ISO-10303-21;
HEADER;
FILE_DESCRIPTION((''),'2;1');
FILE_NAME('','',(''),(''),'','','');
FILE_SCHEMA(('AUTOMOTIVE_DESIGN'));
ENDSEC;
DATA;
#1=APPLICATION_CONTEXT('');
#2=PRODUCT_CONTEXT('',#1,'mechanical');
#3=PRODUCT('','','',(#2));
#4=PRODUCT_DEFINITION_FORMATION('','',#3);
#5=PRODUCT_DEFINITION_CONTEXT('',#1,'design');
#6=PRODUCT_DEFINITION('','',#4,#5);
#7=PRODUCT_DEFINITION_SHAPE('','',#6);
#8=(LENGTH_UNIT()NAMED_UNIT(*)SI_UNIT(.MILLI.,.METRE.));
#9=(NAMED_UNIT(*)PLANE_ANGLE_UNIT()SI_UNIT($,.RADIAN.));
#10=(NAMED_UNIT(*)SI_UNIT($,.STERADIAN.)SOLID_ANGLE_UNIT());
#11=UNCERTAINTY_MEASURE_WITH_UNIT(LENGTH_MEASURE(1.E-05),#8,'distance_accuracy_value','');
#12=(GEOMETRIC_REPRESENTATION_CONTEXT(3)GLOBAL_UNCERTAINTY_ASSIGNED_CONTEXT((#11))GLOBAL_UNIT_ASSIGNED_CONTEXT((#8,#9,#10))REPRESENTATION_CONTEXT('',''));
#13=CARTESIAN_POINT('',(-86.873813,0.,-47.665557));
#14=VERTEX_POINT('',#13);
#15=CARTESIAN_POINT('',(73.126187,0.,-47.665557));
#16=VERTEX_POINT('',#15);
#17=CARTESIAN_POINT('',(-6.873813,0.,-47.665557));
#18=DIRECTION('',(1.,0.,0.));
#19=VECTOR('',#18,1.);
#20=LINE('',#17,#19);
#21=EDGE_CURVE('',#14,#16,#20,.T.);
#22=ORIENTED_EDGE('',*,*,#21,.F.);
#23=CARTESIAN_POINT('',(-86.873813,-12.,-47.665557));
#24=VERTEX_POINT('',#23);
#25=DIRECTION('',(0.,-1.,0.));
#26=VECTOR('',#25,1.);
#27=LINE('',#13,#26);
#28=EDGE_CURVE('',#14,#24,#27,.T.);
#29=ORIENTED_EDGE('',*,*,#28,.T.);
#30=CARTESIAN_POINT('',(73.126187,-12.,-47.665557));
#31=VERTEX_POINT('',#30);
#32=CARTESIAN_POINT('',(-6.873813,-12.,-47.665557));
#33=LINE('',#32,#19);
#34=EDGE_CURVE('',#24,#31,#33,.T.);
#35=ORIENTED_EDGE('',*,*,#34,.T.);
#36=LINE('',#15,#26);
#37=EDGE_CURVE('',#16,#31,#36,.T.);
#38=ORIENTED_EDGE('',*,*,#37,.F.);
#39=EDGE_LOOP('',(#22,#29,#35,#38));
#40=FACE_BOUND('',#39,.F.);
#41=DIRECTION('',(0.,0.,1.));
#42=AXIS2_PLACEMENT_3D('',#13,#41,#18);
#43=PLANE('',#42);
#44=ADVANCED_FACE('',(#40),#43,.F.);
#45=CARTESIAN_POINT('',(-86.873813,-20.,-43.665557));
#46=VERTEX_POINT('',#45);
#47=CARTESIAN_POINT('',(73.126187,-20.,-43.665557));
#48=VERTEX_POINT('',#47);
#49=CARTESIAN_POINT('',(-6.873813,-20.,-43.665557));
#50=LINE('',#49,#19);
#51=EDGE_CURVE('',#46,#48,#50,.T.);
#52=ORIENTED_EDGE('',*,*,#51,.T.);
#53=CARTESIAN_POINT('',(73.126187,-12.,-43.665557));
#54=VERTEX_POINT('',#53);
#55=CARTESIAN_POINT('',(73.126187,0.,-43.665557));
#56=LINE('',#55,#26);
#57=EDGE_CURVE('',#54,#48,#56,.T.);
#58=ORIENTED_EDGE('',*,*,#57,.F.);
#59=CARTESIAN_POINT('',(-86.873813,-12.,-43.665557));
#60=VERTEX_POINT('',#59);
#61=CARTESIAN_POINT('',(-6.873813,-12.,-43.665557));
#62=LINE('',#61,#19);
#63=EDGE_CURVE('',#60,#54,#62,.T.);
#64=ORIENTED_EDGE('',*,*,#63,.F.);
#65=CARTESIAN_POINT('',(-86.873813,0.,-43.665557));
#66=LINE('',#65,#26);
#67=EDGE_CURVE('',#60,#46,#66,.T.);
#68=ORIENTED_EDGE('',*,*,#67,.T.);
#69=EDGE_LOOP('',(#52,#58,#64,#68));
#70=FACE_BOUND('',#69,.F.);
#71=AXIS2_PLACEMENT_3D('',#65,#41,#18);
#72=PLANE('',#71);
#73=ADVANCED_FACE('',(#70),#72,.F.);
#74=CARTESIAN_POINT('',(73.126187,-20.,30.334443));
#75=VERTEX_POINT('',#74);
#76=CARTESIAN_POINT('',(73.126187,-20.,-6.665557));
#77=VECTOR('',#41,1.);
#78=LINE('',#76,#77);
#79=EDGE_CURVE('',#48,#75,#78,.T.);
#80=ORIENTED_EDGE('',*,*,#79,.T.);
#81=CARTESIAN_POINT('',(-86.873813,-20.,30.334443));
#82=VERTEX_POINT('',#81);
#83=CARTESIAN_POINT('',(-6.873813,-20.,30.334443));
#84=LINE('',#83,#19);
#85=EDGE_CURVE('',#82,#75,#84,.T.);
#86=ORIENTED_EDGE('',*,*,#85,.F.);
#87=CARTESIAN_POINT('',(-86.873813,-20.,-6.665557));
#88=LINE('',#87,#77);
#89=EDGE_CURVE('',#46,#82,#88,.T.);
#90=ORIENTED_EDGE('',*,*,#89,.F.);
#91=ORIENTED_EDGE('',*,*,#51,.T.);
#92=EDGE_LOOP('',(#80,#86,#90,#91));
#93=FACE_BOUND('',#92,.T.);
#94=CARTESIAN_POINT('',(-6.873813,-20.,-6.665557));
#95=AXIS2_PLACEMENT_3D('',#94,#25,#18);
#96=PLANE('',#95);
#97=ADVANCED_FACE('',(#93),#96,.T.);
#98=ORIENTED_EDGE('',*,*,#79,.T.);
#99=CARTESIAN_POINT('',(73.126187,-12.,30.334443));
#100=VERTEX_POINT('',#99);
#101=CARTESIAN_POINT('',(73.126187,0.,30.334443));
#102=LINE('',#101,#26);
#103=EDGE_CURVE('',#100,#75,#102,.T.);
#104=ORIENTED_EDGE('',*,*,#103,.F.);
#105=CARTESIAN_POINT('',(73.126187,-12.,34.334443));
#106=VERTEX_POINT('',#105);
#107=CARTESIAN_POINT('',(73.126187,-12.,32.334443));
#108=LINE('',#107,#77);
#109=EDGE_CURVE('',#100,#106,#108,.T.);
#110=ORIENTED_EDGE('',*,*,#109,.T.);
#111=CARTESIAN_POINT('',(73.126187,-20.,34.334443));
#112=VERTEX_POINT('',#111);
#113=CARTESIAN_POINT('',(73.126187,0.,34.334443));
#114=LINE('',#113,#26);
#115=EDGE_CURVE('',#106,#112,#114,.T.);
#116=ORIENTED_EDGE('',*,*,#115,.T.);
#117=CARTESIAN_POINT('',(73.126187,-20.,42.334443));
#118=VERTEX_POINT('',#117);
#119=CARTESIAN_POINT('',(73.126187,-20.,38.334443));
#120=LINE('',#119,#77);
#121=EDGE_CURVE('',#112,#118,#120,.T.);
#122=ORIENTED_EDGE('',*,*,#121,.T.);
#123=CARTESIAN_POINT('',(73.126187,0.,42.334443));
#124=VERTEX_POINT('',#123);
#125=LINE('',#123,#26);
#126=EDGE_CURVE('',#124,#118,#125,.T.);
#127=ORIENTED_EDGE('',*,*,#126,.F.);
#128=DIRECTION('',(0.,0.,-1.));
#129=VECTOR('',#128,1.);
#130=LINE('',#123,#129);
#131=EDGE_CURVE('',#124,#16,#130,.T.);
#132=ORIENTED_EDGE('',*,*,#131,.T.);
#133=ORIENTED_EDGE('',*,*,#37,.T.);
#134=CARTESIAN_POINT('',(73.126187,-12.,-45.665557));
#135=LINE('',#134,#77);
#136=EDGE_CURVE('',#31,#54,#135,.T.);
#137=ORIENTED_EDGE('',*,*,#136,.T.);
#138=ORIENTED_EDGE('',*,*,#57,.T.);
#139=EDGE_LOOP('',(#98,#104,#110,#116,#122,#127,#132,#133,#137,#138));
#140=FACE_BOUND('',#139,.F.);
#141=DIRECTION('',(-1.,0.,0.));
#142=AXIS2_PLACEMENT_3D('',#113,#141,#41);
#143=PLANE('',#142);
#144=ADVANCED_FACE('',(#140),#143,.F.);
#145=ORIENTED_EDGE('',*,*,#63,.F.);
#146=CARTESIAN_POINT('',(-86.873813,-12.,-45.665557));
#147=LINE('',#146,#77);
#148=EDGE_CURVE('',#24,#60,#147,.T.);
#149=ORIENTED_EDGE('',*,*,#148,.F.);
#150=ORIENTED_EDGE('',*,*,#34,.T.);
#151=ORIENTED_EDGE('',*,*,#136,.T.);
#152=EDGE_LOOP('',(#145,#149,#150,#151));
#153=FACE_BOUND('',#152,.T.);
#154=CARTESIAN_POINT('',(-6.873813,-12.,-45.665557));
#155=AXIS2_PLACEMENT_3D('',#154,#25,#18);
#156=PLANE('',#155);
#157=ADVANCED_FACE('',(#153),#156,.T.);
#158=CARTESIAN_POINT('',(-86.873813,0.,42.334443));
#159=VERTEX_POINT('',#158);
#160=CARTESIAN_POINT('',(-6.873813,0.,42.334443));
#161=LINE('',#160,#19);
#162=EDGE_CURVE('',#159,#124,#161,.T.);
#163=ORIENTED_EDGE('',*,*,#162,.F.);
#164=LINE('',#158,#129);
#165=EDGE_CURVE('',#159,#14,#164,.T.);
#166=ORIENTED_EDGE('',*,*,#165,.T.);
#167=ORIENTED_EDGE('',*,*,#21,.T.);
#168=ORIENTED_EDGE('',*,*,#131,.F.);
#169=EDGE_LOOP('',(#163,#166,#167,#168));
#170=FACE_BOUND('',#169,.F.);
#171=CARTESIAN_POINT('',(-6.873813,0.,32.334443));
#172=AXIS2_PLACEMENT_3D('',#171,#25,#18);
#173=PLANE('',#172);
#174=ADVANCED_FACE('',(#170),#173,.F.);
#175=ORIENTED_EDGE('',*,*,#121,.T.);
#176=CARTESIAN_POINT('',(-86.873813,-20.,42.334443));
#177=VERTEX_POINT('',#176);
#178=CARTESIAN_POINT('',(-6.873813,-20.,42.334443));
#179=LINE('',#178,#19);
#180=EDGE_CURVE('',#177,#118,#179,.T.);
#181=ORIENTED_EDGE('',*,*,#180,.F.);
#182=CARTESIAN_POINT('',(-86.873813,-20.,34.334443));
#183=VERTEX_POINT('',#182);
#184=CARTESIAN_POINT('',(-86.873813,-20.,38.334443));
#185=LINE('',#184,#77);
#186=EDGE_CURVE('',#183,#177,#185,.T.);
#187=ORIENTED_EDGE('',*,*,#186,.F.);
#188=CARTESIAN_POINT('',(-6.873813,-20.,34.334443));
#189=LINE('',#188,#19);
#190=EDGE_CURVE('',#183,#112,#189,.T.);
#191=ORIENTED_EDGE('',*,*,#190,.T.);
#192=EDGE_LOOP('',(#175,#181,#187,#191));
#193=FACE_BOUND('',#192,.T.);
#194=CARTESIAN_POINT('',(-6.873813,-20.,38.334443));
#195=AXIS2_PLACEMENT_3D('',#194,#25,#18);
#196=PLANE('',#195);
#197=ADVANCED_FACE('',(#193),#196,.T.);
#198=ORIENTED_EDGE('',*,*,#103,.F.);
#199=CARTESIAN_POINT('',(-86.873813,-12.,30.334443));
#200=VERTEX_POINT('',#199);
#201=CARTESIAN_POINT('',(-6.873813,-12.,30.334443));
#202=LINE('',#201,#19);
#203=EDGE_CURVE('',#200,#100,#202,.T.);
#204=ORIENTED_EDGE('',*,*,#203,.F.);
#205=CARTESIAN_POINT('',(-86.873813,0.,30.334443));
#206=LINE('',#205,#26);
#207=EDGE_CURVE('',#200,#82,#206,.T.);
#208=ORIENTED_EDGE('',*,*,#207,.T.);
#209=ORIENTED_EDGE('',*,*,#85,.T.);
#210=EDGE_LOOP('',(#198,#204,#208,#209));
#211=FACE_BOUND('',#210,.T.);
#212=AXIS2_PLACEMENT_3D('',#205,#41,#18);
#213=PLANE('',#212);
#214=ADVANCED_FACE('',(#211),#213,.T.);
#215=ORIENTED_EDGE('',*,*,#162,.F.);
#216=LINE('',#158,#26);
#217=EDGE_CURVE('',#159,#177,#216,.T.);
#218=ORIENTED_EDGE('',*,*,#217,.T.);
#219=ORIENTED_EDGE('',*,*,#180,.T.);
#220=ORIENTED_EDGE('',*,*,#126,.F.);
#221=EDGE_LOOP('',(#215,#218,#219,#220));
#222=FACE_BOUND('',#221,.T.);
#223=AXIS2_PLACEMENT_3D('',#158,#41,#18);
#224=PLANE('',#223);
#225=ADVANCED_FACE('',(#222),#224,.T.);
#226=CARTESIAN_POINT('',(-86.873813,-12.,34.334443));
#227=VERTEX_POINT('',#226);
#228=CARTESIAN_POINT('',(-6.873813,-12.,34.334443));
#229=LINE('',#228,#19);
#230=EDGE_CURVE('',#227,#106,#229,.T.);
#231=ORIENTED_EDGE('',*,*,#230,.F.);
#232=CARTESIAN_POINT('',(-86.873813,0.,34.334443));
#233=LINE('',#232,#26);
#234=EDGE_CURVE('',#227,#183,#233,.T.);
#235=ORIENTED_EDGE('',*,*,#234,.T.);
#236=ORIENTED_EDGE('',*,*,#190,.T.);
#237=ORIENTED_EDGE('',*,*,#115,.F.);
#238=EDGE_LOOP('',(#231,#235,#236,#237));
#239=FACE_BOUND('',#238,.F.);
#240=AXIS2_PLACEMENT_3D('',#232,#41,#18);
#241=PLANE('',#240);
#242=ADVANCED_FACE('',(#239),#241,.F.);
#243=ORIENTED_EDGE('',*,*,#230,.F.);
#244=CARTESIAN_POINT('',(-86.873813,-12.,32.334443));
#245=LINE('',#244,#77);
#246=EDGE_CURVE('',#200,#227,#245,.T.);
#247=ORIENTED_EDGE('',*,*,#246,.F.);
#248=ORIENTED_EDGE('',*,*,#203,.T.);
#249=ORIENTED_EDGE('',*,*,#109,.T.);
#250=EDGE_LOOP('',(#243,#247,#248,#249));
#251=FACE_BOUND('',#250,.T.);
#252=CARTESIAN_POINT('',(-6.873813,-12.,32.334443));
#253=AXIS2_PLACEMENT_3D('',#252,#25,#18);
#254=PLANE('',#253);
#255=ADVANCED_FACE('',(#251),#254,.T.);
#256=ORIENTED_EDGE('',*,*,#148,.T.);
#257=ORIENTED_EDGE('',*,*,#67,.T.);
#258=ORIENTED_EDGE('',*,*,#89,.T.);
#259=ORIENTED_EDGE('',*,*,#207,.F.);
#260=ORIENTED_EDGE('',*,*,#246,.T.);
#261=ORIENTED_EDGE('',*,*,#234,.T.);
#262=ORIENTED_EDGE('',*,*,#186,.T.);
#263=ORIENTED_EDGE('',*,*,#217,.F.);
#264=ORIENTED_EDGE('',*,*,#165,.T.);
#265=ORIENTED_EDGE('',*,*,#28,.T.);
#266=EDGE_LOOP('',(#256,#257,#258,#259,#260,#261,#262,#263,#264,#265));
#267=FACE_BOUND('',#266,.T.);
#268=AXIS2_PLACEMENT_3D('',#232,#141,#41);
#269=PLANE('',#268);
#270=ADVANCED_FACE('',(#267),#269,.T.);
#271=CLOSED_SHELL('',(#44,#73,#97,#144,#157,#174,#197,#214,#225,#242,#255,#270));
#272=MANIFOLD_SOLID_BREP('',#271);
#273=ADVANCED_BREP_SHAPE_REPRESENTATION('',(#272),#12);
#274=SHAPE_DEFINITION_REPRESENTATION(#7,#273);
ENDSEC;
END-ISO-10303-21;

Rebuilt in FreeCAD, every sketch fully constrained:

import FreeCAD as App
import Part
import Sketcher

doc = App.newDocument("Part")
body = doc.addObject("PartDesign::Body", "Body")

# Sketch on XZ plane
sketch1 = body.newObject("Sketcher::SketchObject", "Sketch")
sketch1.AttachmentSupport = (doc.getObject("XZ_Plane"), [""])
sketch1.MapMode = "FlatFace"
sketch1.addGeometry(Part.LineSegment(App.Vector(-87, 30, 0), App.Vector(-87, -44, 0)), False)
sketch1.addGeometry(Part.LineSegment(App.Vector(-87, -44, 0), App.Vector(73, -44, 0)), False)
sketch1.addGeometry(Part.LineSegment(App.Vector(73, -44, 0), App.Vector(73, 30, 0)), False)
sketch1.addGeometry(Part.LineSegment(App.Vector(73, 30, 0), App.Vector(-87, 30, 0)), False)
sketch1.addConstraint(Sketcher.Constraint("Coincident", 0, 2, 1, 1))
sketch1.addConstraint(Sketcher.Constraint("Coincident", 1, 2, 2, 1))
sketch1.addConstraint(Sketcher.Constraint("Coincident", 2, 2, 3, 1))
sketch1.addConstraint(Sketcher.Constraint("Coincident", 3, 2, 0, 1))
sketch1.addConstraint(Sketcher.Constraint("Vertical", 0))
sketch1.addConstraint(Sketcher.Constraint("Horizontal", 1))
sketch1.addConstraint(Sketcher.Constraint("Vertical", 2))
sketch1.addConstraint(Sketcher.Constraint("Horizontal", 3))
sketch1.addConstraint(Sketcher.Constraint("DistanceX", 1, 1, 1, 2, 160.0))
sketch1.addConstraint(Sketcher.Constraint("DistanceY", 0, 2, 0, 1, 74.0))
sketch1.addConstraint(Sketcher.Constraint("DistanceX", 0, 2, -1, 1, 86.873813))
sketch1.addConstraint(Sketcher.Constraint("DistanceY", 0, 2, -1, 1, 43.665557))
pad1 = body.newObject("PartDesign::Pad", "Pad")
pad1.Profile = sketch1
pad1.Length = 20

# Sketch on XZ plane
sketch2 = body.newObject("Sketcher::SketchObject", "Sketch001")
sketch2.AttachmentSupport = (doc.getObject("XZ_Plane"), [""])
sketch2.MapMode = "FlatFace"
sketch2.addGeometry(Part.LineSegment(App.Vector(-86.9, -43.7, 0), App.Vector(-86.9, -47.7, 0)), False)
sketch2.addGeometry(Part.LineSegment(App.Vector(-86.9, -47.7, 0), App.Vector(73.1, -47.7, 0)), False)
sketch2.addGeometry(Part.LineSegment(App.Vector(73.1, -47.7, 0), App.Vector(73.1, -43.7, 0)), False)
sketch2.addGeometry(Part.LineSegment(App.Vector(73.1, -43.7, 0), App.Vector(-86.9, -43.7, 0)), False)
sketch2.addConstraint(Sketcher.Constraint("Coincident", 0, 2, 1, 1))
sketch2.addConstraint(Sketcher.Constraint("Coincident", 1, 2, 2, 1))
sketch2.addConstraint(Sketcher.Constraint("Coincident", 2, 2, 3, 1))
sketch2.addConstraint(Sketcher.Constraint("Coincident", 3, 2, 0, 1))
sketch2.addConstraint(Sketcher.Constraint("Vertical", 0))
sketch2.addConstraint(Sketcher.Constraint("Horizontal", 1))
sketch2.addConstraint(Sketcher.Constraint("Vertical", 2))
sketch2.addConstraint(Sketcher.Constraint("Horizontal", 3))
sketch2.addConstraint(Sketcher.Constraint("DistanceX", 1, 1, 1, 2, 160.0))
sketch2.addConstraint(Sketcher.Constraint("DistanceY", 0, 2, 0, 1, 4.0))
sketch2.addConstraint(Sketcher.Constraint("DistanceX", 0, 2, -1, 1, 86.873813))
sketch2.addConstraint(Sketcher.Constraint("DistanceY", 0, 2, -1, 1, 47.665557))
pad2 = body.newObject("PartDesign::Pad", "Pad001")
pad2.Profile = sketch2
pad2.Length = 12

# Sketch on XZ plane
sketch3 = body.newObject("Sketcher::SketchObject", "Sketch002")
sketch3.AttachmentSupport = (doc.getObject("XZ_Plane"), [""])
sketch3.MapMode = "FlatFace"
sketch3.addGeometry(Part.LineSegment(App.Vector(-86.9, 34.3, 0), App.Vector(-86.9, 30.3, 0)), False)
sketch3.addGeometry(Part.LineSegment(App.Vector(-86.9, 30.3, 0), App.Vector(73.1, 30.3, 0)), False)
sketch3.addGeometry(Part.LineSegment(App.Vector(73.1, 30.3, 0), App.Vector(73.1, 34.3, 0)), False)
sketch3.addGeometry(Part.LineSegment(App.Vector(73.1, 34.3, 0), App.Vector(-86.9, 34.3, 0)), False)
sketch3.addConstraint(Sketcher.Constraint("Coincident", 0, 2, 1, 1))
sketch3.addConstraint(Sketcher.Constraint("Coincident", 1, 2, 2, 1))
sketch3.addConstraint(Sketcher.Constraint("Coincident", 2, 2, 3, 1))
sketch3.addConstraint(Sketcher.Constraint("Coincident", 3, 2, 0, 1))
sketch3.addConstraint(Sketcher.Constraint("Vertical", 0))
sketch3.addConstraint(Sketcher.Constraint("Horizontal", 1))
sketch3.addConstraint(Sketcher.Constraint("Vertical", 2))
sketch3.addConstraint(Sketcher.Constraint("Horizontal", 3))
sketch3.addConstraint(Sketcher.Constraint("DistanceX", 1, 1, 1, 2, 160.0))
sketch3.addConstraint(Sketcher.Constraint("DistanceY", 0, 2, 0, 1, 4.0))
sketch3.addConstraint(Sketcher.Constraint("DistanceX", 0, 2, -1, 1, 86.873813))
sketch3.addConstraint(Sketcher.Constraint("DistanceY", -1, 1, 0, 2, 30.334443))
pad3 = body.newObject("PartDesign::Pad", "Pad002")
pad3.Profile = sketch3
pad3.Length = 12

# Sketch on XZ plane
sketch4 = body.newObject("Sketcher::SketchObject", "Sketch003")
sketch4.AttachmentSupport = (doc.getObject("XZ_Plane"), [""])
sketch4.MapMode = "FlatFace"
sketch4.addGeometry(Part.LineSegment(App.Vector(-87, 42, 0), App.Vector(-87, 34, 0)), False)
sketch4.addGeometry(Part.LineSegment(App.Vector(-87, 34, 0), App.Vector(73, 34, 0)), False)
sketch4.addGeometry(Part.LineSegment(App.Vector(73, 34, 0), App.Vector(73, 42, 0)), False)
sketch4.addGeometry(Part.LineSegment(App.Vector(73, 42, 0), App.Vector(-87, 42, 0)), False)
sketch4.addConstraint(Sketcher.Constraint("Coincident", 0, 2, 1, 1))
sketch4.addConstraint(Sketcher.Constraint("Coincident", 1, 2, 2, 1))
sketch4.addConstraint(Sketcher.Constraint("Coincident", 2, 2, 3, 1))
sketch4.addConstraint(Sketcher.Constraint("Coincident", 3, 2, 0, 1))
sketch4.addConstraint(Sketcher.Constraint("Vertical", 0))
sketch4.addConstraint(Sketcher.Constraint("Horizontal", 1))
sketch4.addConstraint(Sketcher.Constraint("Vertical", 2))
sketch4.addConstraint(Sketcher.Constraint("Horizontal", 3))
sketch4.addConstraint(Sketcher.Constraint("DistanceX", 1, 1, 1, 2, 160.0))
sketch4.addConstraint(Sketcher.Constraint("DistanceY", 0, 2, 0, 1, 8.0))
sketch4.addConstraint(Sketcher.Constraint("DistanceX", 0, 2, -1, 1, 86.873813))
sketch4.addConstraint(Sketcher.Constraint("DistanceY", -1, 1, 0, 2, 34.334443))
pad4 = body.newObject("PartDesign::Pad", "Pad003")
pad4.Profile = sketch4
pad4.Length = 20

# Sketch on XZ plane
sketch5 = body.newObject("Sketcher::SketchObject", "Sketch004")
sketch5.AttachmentSupport = (doc.getObject("XZ_Plane"), [""])
sketch5.MapMode = "FlatFace"
sketch5.addGeometry(Part.LineSegment(App.Vector(-86.9, 34.3, 0), App.Vector(-86.9, 30.3, 0)), False)
sketch5.addGeometry(Part.LineSegment(App.Vector(-86.9, 30.3, 0), App.Vector(73.1, 30.3, 0)), False)
sketch5.addGeometry(Part.LineSegment(App.Vector(73.1, 30.3, 0), App.Vector(73.1, 34.3, 0)), False)
sketch5.addGeometry(Part.LineSegment(App.Vector(73.1, 34.3, 0), App.Vector(-86.9, 34.3, 0)), False)
sketch5.addConstraint(Sketcher.Constraint("Coincident", 0, 2, 1, 1))
sketch5.addConstraint(Sketcher.Constraint("Coincident", 1, 2, 2, 1))
sketch5.addConstraint(Sketcher.Constraint("Coincident", 2, 2, 3, 1))
sketch5.addConstraint(Sketcher.Constraint("Coincident", 3, 2, 0, 1))
sketch5.addConstraint(Sketcher.Constraint("Vertical", 0))
sketch5.addConstraint(Sketcher.Constraint("Horizontal", 1))
sketch5.addConstraint(Sketcher.Constraint("Vertical", 2))
sketch5.addConstraint(Sketcher.Constraint("Horizontal", 3))
sketch5.addConstraint(Sketcher.Constraint("DistanceX", 1, 1, 1, 2, 160.0))
sketch5.addConstraint(Sketcher.Constraint("DistanceY", 0, 2, 0, 1, 4.0))
sketch5.addConstraint(Sketcher.Constraint("DistanceX", 0, 2, -1, 1, 86.873813))
sketch5.addConstraint(Sketcher.Constraint("DistanceY", -1, 1, 0, 2, 30.334443))
pad5 = body.newObject("PartDesign::Pad", "Pad004")
pad5.Profile = sketch5
pad5.Length = 12

# Sketch on XZ plane
sketch6 = body.newObject("Sketcher::SketchObject", "Sketch005")
sketch6.AttachmentSupport = (doc.getObject("XZ_Plane"), [""])
sketch6.MapMode = "FlatFace"
sketch6.addGeometry(Part.LineSegment(App.Vector(-86.9, -43.7, 0), App.Vector(-86.9, -47.7, 0)), False)
sketch6.addGeometry(Part.LineSegment(App.Vector(-86.9, -47.7, 0), App.Vector(73.1, -47.7, 0)), False)
sketch6.addGeometry(Part.LineSegment(App.Vector(73.1, -47.7, 0), App.Vector(73.1, -43.7, 0)), False)
sketch6.addGeometry(Part.LineSegment(App.Vector(73.1, -43.7, 0), App.Vector(-86.9, -43.7, 0)), False)
sketch6.addConstraint(Sketcher.Constraint("Coincident", 0, 2, 1, 1))
sketch6.addConstraint(Sketcher.Constraint("Coincident", 1, 2, 2, 1))
sketch6.addConstraint(Sketcher.Constraint("Coincident", 2, 2, 3, 1))
sketch6.addConstraint(Sketcher.Constraint("Coincident", 3, 2, 0, 1))
sketch6.addConstraint(Sketcher.Constraint("Vertical", 0))
sketch6.addConstraint(Sketcher.Constraint("Horizontal", 1))
sketch6.addConstraint(Sketcher.Constraint("Vertical", 2))
sketch6.addConstraint(Sketcher.Constraint("Horizontal", 3))
sketch6.addConstraint(Sketcher.Constraint("DistanceX", 1, 1, 1, 2, 160.0))
sketch6.addConstraint(Sketcher.Constraint("DistanceY", 0, 2, 0, 1, 4.0))
sketch6.addConstraint(Sketcher.Constraint("DistanceX", 0, 2, -1, 1, 86.873813))
sketch6.addConstraint(Sketcher.Constraint("DistanceY", 0, 2, -1, 1, 47.665557))
pad6 = body.newObject("PartDesign::Pad", "Pad005")
pad6.Profile = sketch6
pad6.Length = 12

# Sketch on XZ plane
sketch7 = body.newObject("Sketcher::SketchObject", "Sketch006")
sketch7.AttachmentSupport = (doc.getObject("XZ_Plane"), [""])
sketch7.MapMode = "FlatFace"
sketch7.addGeometry(Part.LineSegment(App.Vector(-86.9, 34.3, 0), App.Vector(-86.9, 30.3, 0)), False)
sketch7.addGeometry(Part.LineSegment(App.Vector(-86.9, 30.3, 0), App.Vector(73.1, 30.3, 0)), False)
sketch7.addGeometry(Part.LineSegment(App.Vector(73.1, 30.3, 0), App.Vector(73.1, 34.3, 0)), False)
sketch7.addGeometry(Part.LineSegment(App.Vector(73.1, 34.3, 0), App.Vector(-86.9, 34.3, 0)), False)
sketch7.addConstraint(Sketcher.Constraint("Coincident", 0, 2, 1, 1))
sketch7.addConstraint(Sketcher.Constraint("Coincident", 1, 2, 2, 1))
sketch7.addConstraint(Sketcher.Constraint("Coincident", 2, 2, 3, 1))
sketch7.addConstraint(Sketcher.Constraint("Coincident", 3, 2, 0, 1))
sketch7.addConstraint(Sketcher.Constraint("Vertical", 0))
sketch7.addConstraint(Sketcher.Constraint("Horizontal", 1))
sketch7.addConstraint(Sketcher.Constraint("Vertical", 2))
sketch7.addConstraint(Sketcher.Constraint("Horizontal", 3))
sketch7.addConstraint(Sketcher.Constraint("DistanceX", 1, 1, 1, 2, 160.0))
sketch7.addConstraint(Sketcher.Constraint("DistanceY", 0, 2, 0, 1, 4.0))
sketch7.addConstraint(Sketcher.Constraint("DistanceX", 0, 2, -1, 1, 86.873813))
sketch7.addConstraint(Sketcher.Constraint("DistanceY", -1, 1, 0, 2, 30.334443))
pad7 = body.newObject("PartDesign::Pad", "Pad006")
pad7.Profile = sketch7
pad7.Length = 12

doc.recompute()
